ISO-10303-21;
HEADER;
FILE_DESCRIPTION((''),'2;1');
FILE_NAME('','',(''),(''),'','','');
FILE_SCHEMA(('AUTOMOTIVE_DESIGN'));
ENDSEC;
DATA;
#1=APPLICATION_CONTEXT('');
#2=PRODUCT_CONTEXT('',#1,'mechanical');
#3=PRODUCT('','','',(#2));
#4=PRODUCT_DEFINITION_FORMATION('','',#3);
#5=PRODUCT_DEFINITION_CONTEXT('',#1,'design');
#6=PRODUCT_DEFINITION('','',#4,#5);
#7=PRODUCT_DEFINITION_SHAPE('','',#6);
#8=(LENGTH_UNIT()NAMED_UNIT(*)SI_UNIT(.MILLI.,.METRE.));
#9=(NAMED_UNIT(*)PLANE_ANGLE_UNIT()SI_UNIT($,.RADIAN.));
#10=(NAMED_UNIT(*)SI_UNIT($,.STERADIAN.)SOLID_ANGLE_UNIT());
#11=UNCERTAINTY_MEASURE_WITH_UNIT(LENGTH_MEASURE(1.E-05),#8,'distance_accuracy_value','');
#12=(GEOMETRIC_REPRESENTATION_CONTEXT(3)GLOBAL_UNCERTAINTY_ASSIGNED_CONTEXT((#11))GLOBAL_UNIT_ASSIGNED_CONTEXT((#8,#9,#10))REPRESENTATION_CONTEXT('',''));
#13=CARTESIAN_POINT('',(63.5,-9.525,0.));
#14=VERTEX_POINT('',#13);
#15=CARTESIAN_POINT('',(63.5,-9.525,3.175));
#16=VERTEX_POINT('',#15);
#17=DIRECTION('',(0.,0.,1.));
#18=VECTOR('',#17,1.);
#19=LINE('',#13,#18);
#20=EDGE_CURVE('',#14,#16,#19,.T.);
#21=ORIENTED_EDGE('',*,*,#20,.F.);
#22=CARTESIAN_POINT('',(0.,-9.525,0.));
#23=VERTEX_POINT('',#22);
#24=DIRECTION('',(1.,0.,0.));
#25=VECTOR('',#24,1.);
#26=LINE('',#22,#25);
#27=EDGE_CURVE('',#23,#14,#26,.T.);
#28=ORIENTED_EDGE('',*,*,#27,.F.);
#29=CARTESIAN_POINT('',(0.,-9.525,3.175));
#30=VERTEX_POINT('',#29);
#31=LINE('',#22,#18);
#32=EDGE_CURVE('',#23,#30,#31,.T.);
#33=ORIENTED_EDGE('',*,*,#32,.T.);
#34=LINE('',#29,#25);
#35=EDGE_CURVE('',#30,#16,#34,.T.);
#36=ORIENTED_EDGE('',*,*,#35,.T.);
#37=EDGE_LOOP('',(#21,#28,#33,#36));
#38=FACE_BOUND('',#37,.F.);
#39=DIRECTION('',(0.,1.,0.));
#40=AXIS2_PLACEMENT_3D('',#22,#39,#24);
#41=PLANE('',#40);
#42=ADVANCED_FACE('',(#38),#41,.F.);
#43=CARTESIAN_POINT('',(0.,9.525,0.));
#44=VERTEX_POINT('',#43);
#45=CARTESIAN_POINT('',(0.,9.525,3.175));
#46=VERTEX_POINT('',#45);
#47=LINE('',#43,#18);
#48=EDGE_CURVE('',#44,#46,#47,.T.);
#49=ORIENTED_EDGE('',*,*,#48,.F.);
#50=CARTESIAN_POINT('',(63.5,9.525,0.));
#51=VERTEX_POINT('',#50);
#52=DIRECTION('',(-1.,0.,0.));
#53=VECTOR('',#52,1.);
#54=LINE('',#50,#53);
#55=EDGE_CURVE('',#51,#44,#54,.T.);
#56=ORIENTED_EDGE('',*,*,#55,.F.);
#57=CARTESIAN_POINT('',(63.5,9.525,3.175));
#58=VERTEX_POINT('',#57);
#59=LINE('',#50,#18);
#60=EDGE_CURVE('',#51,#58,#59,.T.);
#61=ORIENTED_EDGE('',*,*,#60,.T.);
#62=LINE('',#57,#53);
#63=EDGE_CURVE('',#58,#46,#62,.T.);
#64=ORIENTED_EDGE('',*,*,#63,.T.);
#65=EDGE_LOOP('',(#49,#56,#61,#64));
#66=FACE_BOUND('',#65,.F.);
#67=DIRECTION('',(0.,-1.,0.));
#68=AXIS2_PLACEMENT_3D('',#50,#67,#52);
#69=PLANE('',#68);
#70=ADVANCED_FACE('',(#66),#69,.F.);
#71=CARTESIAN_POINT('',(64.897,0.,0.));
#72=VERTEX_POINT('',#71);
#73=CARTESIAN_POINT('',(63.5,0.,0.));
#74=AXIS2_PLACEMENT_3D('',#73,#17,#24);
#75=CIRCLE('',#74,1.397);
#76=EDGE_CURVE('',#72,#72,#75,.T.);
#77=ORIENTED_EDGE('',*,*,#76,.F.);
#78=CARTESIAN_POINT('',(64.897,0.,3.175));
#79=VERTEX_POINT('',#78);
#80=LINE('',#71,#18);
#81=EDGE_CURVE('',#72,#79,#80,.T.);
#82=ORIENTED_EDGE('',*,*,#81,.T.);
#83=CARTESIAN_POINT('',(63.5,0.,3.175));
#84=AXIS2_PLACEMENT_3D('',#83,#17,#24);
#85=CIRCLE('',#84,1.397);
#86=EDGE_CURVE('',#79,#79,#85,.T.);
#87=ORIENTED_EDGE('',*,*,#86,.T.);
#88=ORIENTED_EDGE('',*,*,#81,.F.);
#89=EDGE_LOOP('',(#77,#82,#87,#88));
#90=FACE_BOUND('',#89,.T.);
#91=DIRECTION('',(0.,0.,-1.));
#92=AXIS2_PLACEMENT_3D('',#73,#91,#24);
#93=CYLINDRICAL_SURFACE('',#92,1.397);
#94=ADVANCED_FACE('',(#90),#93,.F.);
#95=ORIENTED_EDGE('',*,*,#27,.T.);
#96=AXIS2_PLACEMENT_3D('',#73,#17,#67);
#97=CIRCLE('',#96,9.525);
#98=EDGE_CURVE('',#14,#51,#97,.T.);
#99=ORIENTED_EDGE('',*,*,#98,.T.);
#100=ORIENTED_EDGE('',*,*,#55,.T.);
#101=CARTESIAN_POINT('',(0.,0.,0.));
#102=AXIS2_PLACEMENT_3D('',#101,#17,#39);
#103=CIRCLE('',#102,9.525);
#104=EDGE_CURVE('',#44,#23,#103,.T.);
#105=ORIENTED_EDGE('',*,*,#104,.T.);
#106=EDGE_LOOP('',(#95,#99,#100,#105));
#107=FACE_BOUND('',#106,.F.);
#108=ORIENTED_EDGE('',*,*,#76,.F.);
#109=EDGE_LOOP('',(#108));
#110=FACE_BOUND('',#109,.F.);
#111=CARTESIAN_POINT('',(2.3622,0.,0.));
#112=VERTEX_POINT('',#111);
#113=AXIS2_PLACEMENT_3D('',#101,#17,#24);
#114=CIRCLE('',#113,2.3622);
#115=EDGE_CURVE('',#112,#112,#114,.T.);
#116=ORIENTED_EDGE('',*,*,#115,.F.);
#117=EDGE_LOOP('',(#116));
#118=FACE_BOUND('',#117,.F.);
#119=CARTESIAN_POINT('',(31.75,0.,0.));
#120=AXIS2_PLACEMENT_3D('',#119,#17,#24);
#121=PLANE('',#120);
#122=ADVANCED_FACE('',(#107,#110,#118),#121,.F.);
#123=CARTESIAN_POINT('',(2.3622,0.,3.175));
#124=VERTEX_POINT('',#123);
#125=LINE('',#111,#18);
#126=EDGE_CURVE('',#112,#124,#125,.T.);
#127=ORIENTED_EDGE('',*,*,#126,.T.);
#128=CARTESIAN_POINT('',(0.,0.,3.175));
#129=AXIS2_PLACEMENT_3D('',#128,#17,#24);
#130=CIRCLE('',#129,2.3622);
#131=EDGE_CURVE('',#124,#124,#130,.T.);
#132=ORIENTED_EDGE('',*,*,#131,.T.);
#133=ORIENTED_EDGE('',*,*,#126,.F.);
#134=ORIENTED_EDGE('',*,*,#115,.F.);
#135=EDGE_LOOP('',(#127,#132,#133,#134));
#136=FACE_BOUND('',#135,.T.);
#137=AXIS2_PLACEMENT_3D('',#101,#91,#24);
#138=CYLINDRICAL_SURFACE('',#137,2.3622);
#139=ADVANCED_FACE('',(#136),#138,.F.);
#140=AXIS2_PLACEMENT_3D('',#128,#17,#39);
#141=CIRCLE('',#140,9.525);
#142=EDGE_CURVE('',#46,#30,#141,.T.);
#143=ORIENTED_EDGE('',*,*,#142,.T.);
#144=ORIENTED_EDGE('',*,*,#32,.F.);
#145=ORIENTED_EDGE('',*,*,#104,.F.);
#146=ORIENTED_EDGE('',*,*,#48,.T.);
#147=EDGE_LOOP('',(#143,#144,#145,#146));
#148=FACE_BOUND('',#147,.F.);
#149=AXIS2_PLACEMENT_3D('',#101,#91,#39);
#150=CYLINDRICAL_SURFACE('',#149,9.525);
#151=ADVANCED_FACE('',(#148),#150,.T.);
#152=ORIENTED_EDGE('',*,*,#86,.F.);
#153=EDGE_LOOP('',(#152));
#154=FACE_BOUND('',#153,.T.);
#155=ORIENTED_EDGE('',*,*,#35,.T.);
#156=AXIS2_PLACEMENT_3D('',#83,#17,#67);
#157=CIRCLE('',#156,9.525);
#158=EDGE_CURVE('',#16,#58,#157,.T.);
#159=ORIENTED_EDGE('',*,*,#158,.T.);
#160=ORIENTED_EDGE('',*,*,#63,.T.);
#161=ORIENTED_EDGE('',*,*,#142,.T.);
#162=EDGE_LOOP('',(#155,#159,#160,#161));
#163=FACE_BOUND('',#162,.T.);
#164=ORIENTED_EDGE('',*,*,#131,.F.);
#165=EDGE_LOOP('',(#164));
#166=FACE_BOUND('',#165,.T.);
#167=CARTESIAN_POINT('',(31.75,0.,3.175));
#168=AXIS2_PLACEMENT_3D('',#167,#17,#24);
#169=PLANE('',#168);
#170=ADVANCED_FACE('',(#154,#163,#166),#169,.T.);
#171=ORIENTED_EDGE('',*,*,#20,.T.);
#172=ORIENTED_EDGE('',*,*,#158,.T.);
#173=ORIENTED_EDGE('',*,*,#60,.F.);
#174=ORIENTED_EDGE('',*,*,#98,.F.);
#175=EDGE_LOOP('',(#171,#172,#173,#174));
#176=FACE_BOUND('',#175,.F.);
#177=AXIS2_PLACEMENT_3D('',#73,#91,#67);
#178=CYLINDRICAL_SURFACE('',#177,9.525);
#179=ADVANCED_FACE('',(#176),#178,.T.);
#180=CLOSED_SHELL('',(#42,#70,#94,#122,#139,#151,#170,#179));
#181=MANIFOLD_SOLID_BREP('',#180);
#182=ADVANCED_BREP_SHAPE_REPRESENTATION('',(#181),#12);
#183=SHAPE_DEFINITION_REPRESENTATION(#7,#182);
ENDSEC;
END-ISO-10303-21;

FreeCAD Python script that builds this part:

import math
import FreeCAD as App
import Part
import Sketcher
from FreeCAD import Vector
Q = App.Units.Quantity

doc = App.newDocument("Part")
body = doc.addObject("PartDesign::Body", "Body")

# Sketch on XY plane
sketch1 = body.newObject("Sketcher::SketchObject", "Sketch")
sketch1.AttachmentSupport = (doc.getObject("XY_Plane"), [""])
sketch1.MapMode = "FlatFace"
sketch1.addGeometry(Part.ArcOfCircle(Part.Circle(Vector(63.5, 0, 0), Vector(0, 0, 1), 9.525), math.radians(-90), math.radians(90)), False)
sketch1.addGeometry(Part.LineSegment(Vector(63.5, 9.525, 0), Vector(0, 9.525, 0)), False)
sketch1.addGeometry(Part.ArcOfCircle(Part.Circle(Vector(0, 0, 0), Vector(0, 0, 1), 9.525), math.radians(90), math.radians(270)), False)
sketch1.addGeometry(Part.LineSegment(Vector(0, -9.525, 0), Vector(63.5, -9.525, 0)), False)
sketch1.addGeometry(Part.Circle(Vector(0, 0, 0), Vector(0, 0, 1), 2.3622), False)
sketch1.addGeometry(Part.Circle(Vector(63.5, 0, 0), Vector(0, 0, 1), 1.397), False)
sketch1.addConstraint(Sketcher.Constraint("Tangent", 0, 2, 1, 1))
sketch1.addConstraint(Sketcher.Constraint("Tangent", 1, 2, 2, 1))
sketch1.addConstraint(Sketcher.Constraint("Tangent", 2, 2, 3, 1))
sketch1.addConstraint(Sketcher.Constraint("Tangent", 3, 2, 0, 1))
sketch1.addConstraint(Sketcher.Constraint("Horizontal", 1))
sketch1.addConstraint(Sketcher.Constraint("Horizontal", 3))
sketch1.addConstraint(Sketcher.Constraint("Coincident", 2, 3, -1, 1))
sketch1.addConstraint(Sketcher.Constraint("Coincident", 4, 3, -1, 1))
sketch1.addConstraint(Sketcher.Constraint("Coincident", 5, 3, 0, 3))
sketch1.addConstraint(Sketcher.Constraint("Diameter", 5, Q("0.11 in")))
sketch1.addConstraint(Sketcher.Constraint("Diameter", 4, Q("0.186 in")))
sketch1.addConstraint(Sketcher.Constraint("DistanceX", 1, 2, 1, 1, Q("2.5 in")))
sketch1.addConstraint(Sketcher.Constraint("Radius", 0, Q("0.375 in")))
pad1 = body.newObject("PartDesign::Pad", "Pad")
pad1.Profile = sketch1
pad1.Length = Q("0.125 in")

doc.recompute()
